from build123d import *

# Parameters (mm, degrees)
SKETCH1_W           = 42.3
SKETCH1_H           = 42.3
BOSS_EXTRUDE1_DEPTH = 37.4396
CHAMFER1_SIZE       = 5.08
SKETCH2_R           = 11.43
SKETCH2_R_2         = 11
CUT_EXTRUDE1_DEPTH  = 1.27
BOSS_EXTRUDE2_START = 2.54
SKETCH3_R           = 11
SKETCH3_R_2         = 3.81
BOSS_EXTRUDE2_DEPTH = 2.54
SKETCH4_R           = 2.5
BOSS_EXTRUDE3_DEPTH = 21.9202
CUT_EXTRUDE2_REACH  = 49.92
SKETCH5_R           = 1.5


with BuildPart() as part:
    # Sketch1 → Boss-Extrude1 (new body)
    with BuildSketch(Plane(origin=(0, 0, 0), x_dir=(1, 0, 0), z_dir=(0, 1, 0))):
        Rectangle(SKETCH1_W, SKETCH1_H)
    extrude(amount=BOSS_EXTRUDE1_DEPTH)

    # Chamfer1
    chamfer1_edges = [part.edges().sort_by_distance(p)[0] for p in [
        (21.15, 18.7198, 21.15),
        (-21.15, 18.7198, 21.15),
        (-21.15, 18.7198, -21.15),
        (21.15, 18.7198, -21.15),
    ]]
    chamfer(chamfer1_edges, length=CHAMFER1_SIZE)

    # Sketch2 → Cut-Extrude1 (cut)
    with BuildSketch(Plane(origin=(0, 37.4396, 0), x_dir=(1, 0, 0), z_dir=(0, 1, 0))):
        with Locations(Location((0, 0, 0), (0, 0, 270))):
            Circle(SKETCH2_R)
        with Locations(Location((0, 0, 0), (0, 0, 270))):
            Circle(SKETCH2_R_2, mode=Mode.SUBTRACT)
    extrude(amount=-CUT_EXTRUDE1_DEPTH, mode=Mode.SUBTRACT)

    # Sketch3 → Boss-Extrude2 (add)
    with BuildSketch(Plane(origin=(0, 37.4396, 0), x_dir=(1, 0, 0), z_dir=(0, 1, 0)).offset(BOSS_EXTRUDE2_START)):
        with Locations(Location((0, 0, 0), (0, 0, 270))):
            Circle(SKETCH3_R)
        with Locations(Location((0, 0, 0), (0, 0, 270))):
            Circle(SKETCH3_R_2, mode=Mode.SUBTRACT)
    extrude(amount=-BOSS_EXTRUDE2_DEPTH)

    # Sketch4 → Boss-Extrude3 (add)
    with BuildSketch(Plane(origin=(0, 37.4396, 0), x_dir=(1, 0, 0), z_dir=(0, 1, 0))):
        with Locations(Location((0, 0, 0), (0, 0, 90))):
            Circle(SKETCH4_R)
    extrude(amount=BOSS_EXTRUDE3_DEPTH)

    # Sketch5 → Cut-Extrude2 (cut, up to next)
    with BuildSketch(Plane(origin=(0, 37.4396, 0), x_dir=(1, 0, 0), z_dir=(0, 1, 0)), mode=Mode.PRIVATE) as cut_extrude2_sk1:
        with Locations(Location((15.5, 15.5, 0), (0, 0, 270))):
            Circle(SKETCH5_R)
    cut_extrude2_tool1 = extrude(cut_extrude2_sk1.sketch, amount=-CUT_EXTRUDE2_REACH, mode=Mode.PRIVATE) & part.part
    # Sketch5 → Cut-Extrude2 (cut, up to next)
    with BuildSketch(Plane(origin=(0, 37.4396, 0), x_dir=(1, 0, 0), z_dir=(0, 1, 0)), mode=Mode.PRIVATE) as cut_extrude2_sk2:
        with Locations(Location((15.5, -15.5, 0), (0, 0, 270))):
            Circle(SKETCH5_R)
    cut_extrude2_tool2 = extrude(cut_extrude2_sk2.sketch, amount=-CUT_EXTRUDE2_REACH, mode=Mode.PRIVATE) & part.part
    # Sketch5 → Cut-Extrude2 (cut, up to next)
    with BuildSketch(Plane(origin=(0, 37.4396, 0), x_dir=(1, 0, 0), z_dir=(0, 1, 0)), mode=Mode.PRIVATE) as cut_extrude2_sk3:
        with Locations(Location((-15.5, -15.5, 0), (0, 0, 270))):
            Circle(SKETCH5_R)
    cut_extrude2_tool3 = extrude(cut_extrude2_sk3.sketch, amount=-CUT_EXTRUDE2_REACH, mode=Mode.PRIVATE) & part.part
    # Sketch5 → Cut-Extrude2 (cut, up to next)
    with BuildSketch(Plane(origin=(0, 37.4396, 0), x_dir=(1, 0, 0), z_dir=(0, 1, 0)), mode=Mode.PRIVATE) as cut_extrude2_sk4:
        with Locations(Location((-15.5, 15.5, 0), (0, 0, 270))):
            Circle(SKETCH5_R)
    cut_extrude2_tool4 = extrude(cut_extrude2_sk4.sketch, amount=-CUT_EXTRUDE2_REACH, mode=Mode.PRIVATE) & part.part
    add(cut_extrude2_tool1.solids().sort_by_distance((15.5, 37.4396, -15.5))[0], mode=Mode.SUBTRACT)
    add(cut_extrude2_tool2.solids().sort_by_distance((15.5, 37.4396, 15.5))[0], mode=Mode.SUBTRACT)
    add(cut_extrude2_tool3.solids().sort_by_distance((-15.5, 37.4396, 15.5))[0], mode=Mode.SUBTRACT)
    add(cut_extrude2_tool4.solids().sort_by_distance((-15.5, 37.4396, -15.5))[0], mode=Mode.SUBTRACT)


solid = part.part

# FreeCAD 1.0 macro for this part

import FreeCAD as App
import Part
import Sketcher

V = App.Vector
Q = App.Units.Quantity


def edges_at(feature, points):
    """Names of the edges that pass closest to the given points."""
    edges = feature.Shape.Edges
    near = lambda p: min(range(len(edges)), key=lambda i: edges[i].distToShape(Part.Vertex(*p))[0])
    return sorted({f"Edge{near(p) + 1}" for p in points})


def add_polygon(sketch, points):
    """Adds a closed chain of lines whose ends are joined by coincident constraints."""
    first, n = sketch.GeometryCount, len(points)
    for a, b in zip(points, points[1:] + points[:1]):
        sketch.addGeometry(Part.LineSegment(App.Vector(*a, 0), App.Vector(*b, 0)), False)
    for i in range(n):
        sketch.addConstraint(Sketcher.Constraint("Coincident", first + i, 2, first + (i + 1) % n, 1))

doc = App.newDocument("Part")
body = doc.addObject("PartDesign::Body", "Body")

# Sketch on XZ plane
sketch1 = body.newObject("Sketcher::SketchObject", "Sketch")
sketch1.AttachmentSupport = (doc.getObject("XZ_Plane"), [""])
sketch1.MapMode = "FlatFace"
add_polygon(sketch1, [(-21.15, -21.15), (-21.15, 21.15), (21.15, 21.15), (21.15, -21.15)])  # lines 0-3
sketch1.addConstraint([
    Sketcher.Constraint("Vertical", 0),
    Sketcher.Constraint("Horizontal", 1),
    Sketcher.Constraint("Vertical", 2),
    Sketcher.Constraint("Horizontal", 3),
    Sketcher.Constraint("Symmetric", 0, 2, 2, 2, -1, 1),
    Sketcher.Constraint("Equal", 3, 0),
    Sketcher.Constraint("DistanceX", 1, 1, 1, 2, Q("42.3 mm")),
])
pad1 = body.newObject("PartDesign::Pad", "Pad")
pad1.Profile = sketch1
pad1.Length = Q("1.474 in")
pad1.Reversed = True
doc.recompute()

chamfer = body.newObject("PartDesign::Chamfer", "Chamfer")
chamfer.Base = (pad1, edges_at(pad1, [
    (21.15, 18.72, 21.15),
    (-21.15, 18.72, 21.15),
    (-21.15, 18.72, -21.15),
    (21.15, 18.72, -21.15),
]))
chamfer.Size = Q("0.2 in")

# Sketch on XZ plane
sketch2 = body.newObject("Sketcher::SketchObject", "Sketch001")
sketch2.AttachmentSupport = (doc.getObject("XZ_Plane"), [""])
sketch2.MapMode = "FlatFace"
sketch2.AttachmentOffset = App.Placement(V(0, 0, -1.474 * 25.4), App.Rotation())
sketch2.addGeometry([
    Part.Circle(V(0, 0, 0), V(0, 0, 1), 11.43),
    Part.Circle(V(0, 0, 0), V(0, 0, 1), 11),
], False)
sketch2.addConstraint([
    Sketcher.Constraint("Coincident", 0, 3, -1, 1),
    Sketcher.Constraint("Coincident", 1, 3, -1, 1),
    Sketcher.Constraint("Diameter", 0, Q("0.9 in")),
    Sketcher.Constraint("Diameter", 1, Q("22 mm")),
])
pocket1 = body.newObject("PartDesign::Pocket", "Pocket")
pocket1.Profile = sketch2
pocket1.Length = Q("0.05 in")
pocket1.Reversed = True

# Sketch on XZ plane
sketch3 = body.newObject("Sketcher::SketchObject", "Sketch002")
sketch3.AttachmentSupport = (doc.getObject("XZ_Plane"), [""])
sketch3.MapMode = "FlatFace"
sketch3.AttachmentOffset = App.Placement(V(0, 0, -1.574 * 25.4), App.Rotation())
sketch3.addGeometry([
    Part.Circle(V(0, 0, 0), V(0, 0, 1), 11),
    Part.Circle(V(0, 0, 0), V(0, 0, 1), 3.81),
], False)
sketch3.addConstraint([
    Sketcher.Constraint("Coincident", 0, 3, -1, 1),
    Sketcher.Constraint("Coincident", 1, 3, -1, 1),
    Sketcher.Constraint("Diameter", 1, Q("0.3 in")),
    Sketcher.Constraint("Diameter", 0, Q("22 mm")),
])
pad2 = body.newObject("PartDesign::Pad", "Pad001")
pad2.Profile = sketch3
pad2.Length = Q("0.1 in")

# Sketch on XZ plane
sketch4 = body.newObject("Sketcher::SketchObject", "Sketch003")
sketch4.AttachmentSupport = (doc.getObject("XZ_Plane"), [""])
sketch4.MapMode = "FlatFace"
sketch4.AttachmentOffset = App.Placement(V(0, 0, -1.474 * 25.4), App.Rotation())
sketch4.addGeometry(Part.Circle(V(0, 0, 0), V(0, 0, 1), 2.5), False)
sketch4.addConstraint([
    Sketcher.Constraint("Coincident", 0, 3, -1, 1),
    Sketcher.Constraint("Diameter", 0, Q("5 mm")),
])
pad3 = body.newObject("PartDesign::Pad", "Pad002")
pad3.Profile = sketch4
pad3.Length = Q("0.863 in")
pad3.Reversed = True

# Sketch on XZ plane
sketch5 = body.newObject("Sketcher::SketchObject", "Sketch004")
sketch5.AttachmentSupport = (doc.getObject("XZ_Plane"), [""])
sketch5.MapMode = "FlatFace"
sketch5.AttachmentOffset = App.Placement(V(0, 0, -1.474 * 25.4), App.Rotation())
sketch5.addGeometry(Part.Circle(V(15.5, -15.5, 0), V(0, 0, 1), 1.5), False)
sketch5.addConstraint([
    Sketcher.Constraint("Diameter", 0, Q("3 mm")),
    Sketcher.Constraint("DistanceX", -1, 1, 0, 3, Q("15.5 mm")),
    Sketcher.Constraint("DistanceY", 0, 3, -1, 1, Q("15.5 mm")),
])
pocket2 = body.newObject("PartDesign::Pocket", "Pocket001")
pocket2.Profile = sketch5
pocket2.Type = "UpToFirst"
pocket2.Reversed = True

# Sketch on XZ plane
sketch6 = body.newObject("Sketcher::SketchObject", "Sketch005")
sketch6.AttachmentSupport = (doc.getObject("XZ_Plane"), [""])
sketch6.MapMode = "FlatFace"
sketch6.AttachmentOffset = App.Placement(V(0, 0, -1.474 * 25.4), App.Rotation())
sketch6.addGeometry(Part.Circle(V(15.5, 15.5, 0), V(0, 0, 1), 1.5), False)
sketch6.addConstraint([
    Sketcher.Constraint("Diameter", 0, Q("3 mm")),
    Sketcher.Constraint("DistanceX", -1, 1, 0, 3, Q("15.5 mm")),
    Sketcher.Constraint("DistanceY", -1, 1, 0, 3, Q("15.5 mm")),
])
pocket3 = body.newObject("PartDesign::Pocket", "Pocket002")
pocket3.Profile = sketch6
pocket3.Type = "UpToFirst"
pocket3.Reversed = True

# Sketch on XZ plane
sketch7 = body.newObject("Sketcher::SketchObject", "Sketch006")
sketch7.AttachmentSupport = (doc.getObject("XZ_Plane"), [""])
sketch7.MapMode = "FlatFace"
sketch7.AttachmentOffset = App.Placement(V(0, 0, -1.474 * 25.4), App.Rotation())
sketch7.addGeometry(Part.Circle(V(-15.5, 15.5, 0), V(0, 0, 1), 1.5), False)
sketch7.addConstraint([
    Sketcher.Constraint("Diameter", 0, Q("3 mm")),
    Sketcher.Constraint("DistanceX", 0, 3, -1, 1, Q("15.5 mm")),
    Sketcher.Constraint("DistanceY", -1, 1, 0, 3, Q("15.5 mm")),
])
pocket4 = body.newObject("PartDesign::Pocket", "Pocket003")
pocket4.Profile = sketch7
pocket4.Type = "UpToFirst"
pocket4.Reversed = True

# Sketch on XZ plane
sketch8 = body.newObject("Sketcher::SketchObject", "Sketch007")
sketch8.AttachmentSupport = (doc.getObject("XZ_Plane"), [""])
sketch8.MapMode = "FlatFace"
sketch8.AttachmentOffset = App.Placement(V(0, 0, -1.474 * 25.4), App.Rotation())
sketch8.addGeometry(Part.Circle(V(-15.5, -15.5, 0), V(0, 0, 1), 1.5), False)
sketch8.addConstraint([
    Sketcher.Constraint("Diameter", 0, Q("3 mm")),
    Sketcher.Constraint("DistanceX", 0, 3, -1, 1, Q("15.5 mm")),
    Sketcher.Constraint("DistanceY", 0, 3, -1, 1, Q("15.5 mm")),
])
pocket5 = body.newObject("PartDesign::Pocket", "Pocket004")
pocket5.Profile = sketch8
pocket5.Type = "UpToFirst"
pocket5.Reversed = True

doc.recompute()
